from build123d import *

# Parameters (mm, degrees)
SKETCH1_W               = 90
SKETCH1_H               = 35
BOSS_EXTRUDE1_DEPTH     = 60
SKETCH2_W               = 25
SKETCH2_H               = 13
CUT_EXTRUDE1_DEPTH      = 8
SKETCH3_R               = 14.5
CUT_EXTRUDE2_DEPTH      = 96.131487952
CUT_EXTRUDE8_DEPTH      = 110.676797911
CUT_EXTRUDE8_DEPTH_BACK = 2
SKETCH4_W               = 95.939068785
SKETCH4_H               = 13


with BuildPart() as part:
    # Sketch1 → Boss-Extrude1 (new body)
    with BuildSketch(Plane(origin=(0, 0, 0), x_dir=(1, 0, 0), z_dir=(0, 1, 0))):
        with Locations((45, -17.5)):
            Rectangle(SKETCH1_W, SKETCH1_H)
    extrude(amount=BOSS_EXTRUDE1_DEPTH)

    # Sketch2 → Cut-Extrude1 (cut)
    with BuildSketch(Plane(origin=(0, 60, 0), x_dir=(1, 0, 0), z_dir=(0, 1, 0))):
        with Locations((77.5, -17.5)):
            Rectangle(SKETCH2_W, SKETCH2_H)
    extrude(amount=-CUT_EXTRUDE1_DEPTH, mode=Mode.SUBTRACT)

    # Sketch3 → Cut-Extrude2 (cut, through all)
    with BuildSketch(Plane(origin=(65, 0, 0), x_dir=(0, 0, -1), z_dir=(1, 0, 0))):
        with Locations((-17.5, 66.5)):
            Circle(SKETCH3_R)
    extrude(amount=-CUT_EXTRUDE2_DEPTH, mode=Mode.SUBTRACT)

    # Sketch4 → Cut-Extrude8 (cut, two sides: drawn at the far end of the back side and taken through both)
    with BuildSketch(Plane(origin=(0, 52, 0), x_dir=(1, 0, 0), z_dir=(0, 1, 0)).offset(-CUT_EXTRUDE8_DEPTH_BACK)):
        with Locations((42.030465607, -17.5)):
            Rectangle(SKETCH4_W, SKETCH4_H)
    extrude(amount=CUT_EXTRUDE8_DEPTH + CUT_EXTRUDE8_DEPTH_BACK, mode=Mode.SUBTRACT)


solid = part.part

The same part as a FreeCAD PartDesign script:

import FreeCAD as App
import Part
import Sketcher
from FreeCAD import Vector
Q = App.Units.Quantity

doc = App.newDocument("Part")
body = doc.addObject("PartDesign::Body", "Body")

# Sketch on XZ plane
sketch1 = doc.addObject("Sketcher::SketchObject", "Sketch")
body.addObject(sketch1)
sketch1.AttachmentSupport = (doc.XZ_Plane, [""])
sketch1.MapMode = "FlatFace"
sketch1.addGeometry([
    Part.LineSegment(Vector(0, 0, 0), Vector(0, 35, 0)),
    Part.LineSegment(Vector(0, 35, 0), Vector(90, 35, 0)),
    Part.LineSegment(Vector(90, 35, 0), Vector(90, 0, 0)),
    Part.LineSegment(Vector(90, 0, 0), Vector(0, 0, 0)),
], False)
sketch1.addConstraint([
    Sketcher.Constraint("Coincident", 0, 2, 1, 1),
    Sketcher.Constraint("Coincident", 1, 2, 2, 1),
    Sketcher.Constraint("Coincident", 2, 2, 3, 1),
    Sketcher.Constraint("Coincident", 3, 2, 0, 1),
    Sketcher.Constraint("Vertical", 0),
    Sketcher.Constraint("Horizontal", 1),
    Sketcher.Constraint("Vertical", 2),
    Sketcher.Constraint("Horizontal", 3),
    Sketcher.Constraint("Coincident", 3, 2, -1, 1),
    Sketcher.Constraint("DistanceX", 1, 1, 1, 2, Q("90 mm")),
    Sketcher.Constraint("DistanceY", 0, 1, 0, 2, Q("35 mm")),
])
pad1 = doc.addObject("PartDesign::Pad", "Pad")
body.addObject(pad1)
pad1.Profile = sketch1
pad1.Length = 60
pad1.Reversed = True

# Sketch on XZ plane
sketch2 = doc.addObject("Sketcher::SketchObject", "Sketch001")
body.addObject(sketch2)
sketch2.AttachmentSupport = (doc.XZ_Plane, [""])
sketch2.MapMode = "FlatFace"
sketch2.AttachmentOffset = App.Placement(Vector(0, 0, -60), App.Rotation())
sketch2.addGeometry([
    Part.LineSegment(Vector(65, 11, 0), Vector(65, 24, 0)),
    Part.LineSegment(Vector(65, 24, 0), Vector(90, 24, 0)),
    Part.LineSegment(Vector(90, 24, 0), Vector(90, 11, 0)),
    Part.LineSegment(Vector(90, 11, 0), Vector(65, 11, 0)),
], False)
sketch2.addConstraint([
    Sketcher.Constraint("Coincident", 0, 2, 1, 1),
    Sketcher.Constraint("Coincident", 1, 2, 2, 1),
    Sketcher.Constraint("Coincident", 2, 2, 3, 1),
    Sketcher.Constraint("Coincident", 3, 2, 0, 1),
    Sketcher.Constraint("Vertical", 0),
    Sketcher.Constraint("Horizontal", 1),
    Sketcher.Constraint("Vertical", 2),
    Sketcher.Constraint("Horizontal", 3),
    Sketcher.Constraint("DistanceX", 1, 1, 1, 2, Q("25 mm")),
    Sketcher.Constraint("DistanceY", 0, 1, 0, 2, Q("13 mm")),
    Sketcher.Constraint("DistanceX", -1, 1, 0, 2, Q("65 mm")),
    Sketcher.Constraint("DistanceY", -1, 1, 0, 2, Q("24 mm")),
])
pocket1 = doc.addObject("PartDesign::Pocket", "Pocket")
body.addObject(pocket1)
pocket1.Profile = sketch2
pocket1.Length = 8
pocket1.Reversed = True

# Sketch on YZ plane
sketch3 = doc.addObject("Sketcher::SketchObject", "Sketch002")
body.addObject(sketch3)
sketch3.AttachmentSupport = (doc.YZ_Plane, [""])
sketch3.MapMode = "FlatFace"
sketch3.AttachmentOffset = App.Placement(Vector(0, 0, 65), App.Rotation())
sketch3.addGeometry(Part.Circle(Vector(66, 18, 0), Vector(0, 0, 1), 14), False)
sketch3.addConstraint([
    Sketcher.Constraint("Diameter", 0, Q("29 mm")),
    Sketcher.Constraint("DistanceX", -1, 1, 0, 3, Q("66.5 mm")),
    Sketcher.Constraint("DistanceY", -1, 1, 0, 3, Q("17.5 mm")),
])
pocket2 = doc.addObject("PartDesign::Pocket", "Pocket001")
body.addObject(pocket2)
pocket2.Profile = sketch3
pocket2.Type = "ThroughAll"

# Sketch on XZ plane
sketch4 = doc.addObject("Sketcher::SketchObject", "Sketch003")
body.addObject(sketch4)
sketch4.AttachmentSupport = (doc.XZ_Plane, [""])
sketch4.MapMode = "FlatFace"
sketch4.AttachmentOffset = App.Placement(Vector(0, 0, -52), App.Rotation())
sketch4.addGeometry([
    Part.LineSegment(Vector(-6, 11, 0), Vector(-6, 24, 0)),
    Part.LineSegment(Vector(-6, 24, 0), Vector(90, 24, 0)),
    Part.LineSegment(Vector(90, 24, 0), Vector(90, 11, 0)),
    Part.LineSegment(Vector(90, 11, 0), Vector(-6, 11, 0)),
], False)
sketch4.addConstraint([
    Sketcher.Constraint("Coincident", 0, 2, 1, 1),
    Sketcher.Constraint("Coincident", 1, 2, 2, 1),
    Sketcher.Constraint("Coincident", 2, 2, 3, 1),
    Sketcher.Constraint("Coincident", 3, 2, 0, 1),
    Sketcher.Constraint("Vertical", 0),
    Sketcher.Constraint("Horizontal", 1),
    Sketcher.Constraint("Vertical", 2),
    Sketcher.Constraint("Horizontal", 3),
    Sketcher.Constraint("DistanceY", 0, 1, 0, 2, Q("13 mm")),
    Sketcher.Constraint("DistanceY", -1, 1, 0, 2, Q("24 mm")),
    Sketcher.Constraint("DistanceX", -1, 1, 1, 2, Q("90 mm")),
    Sketcher.Constraint("DistanceX", 1, 1, 1, 2, Q("95.939069 mm")),
])
pocket3 = doc.addObject("PartDesign::Pocket", "Pocket002")
body.addObject(pocket3)
pocket3.Profile = sketch4
pocket3.Type = "TwoLengths"
pocket3.Length = 110.676798
pocket3.Length2 = 2

doc.recompute()
